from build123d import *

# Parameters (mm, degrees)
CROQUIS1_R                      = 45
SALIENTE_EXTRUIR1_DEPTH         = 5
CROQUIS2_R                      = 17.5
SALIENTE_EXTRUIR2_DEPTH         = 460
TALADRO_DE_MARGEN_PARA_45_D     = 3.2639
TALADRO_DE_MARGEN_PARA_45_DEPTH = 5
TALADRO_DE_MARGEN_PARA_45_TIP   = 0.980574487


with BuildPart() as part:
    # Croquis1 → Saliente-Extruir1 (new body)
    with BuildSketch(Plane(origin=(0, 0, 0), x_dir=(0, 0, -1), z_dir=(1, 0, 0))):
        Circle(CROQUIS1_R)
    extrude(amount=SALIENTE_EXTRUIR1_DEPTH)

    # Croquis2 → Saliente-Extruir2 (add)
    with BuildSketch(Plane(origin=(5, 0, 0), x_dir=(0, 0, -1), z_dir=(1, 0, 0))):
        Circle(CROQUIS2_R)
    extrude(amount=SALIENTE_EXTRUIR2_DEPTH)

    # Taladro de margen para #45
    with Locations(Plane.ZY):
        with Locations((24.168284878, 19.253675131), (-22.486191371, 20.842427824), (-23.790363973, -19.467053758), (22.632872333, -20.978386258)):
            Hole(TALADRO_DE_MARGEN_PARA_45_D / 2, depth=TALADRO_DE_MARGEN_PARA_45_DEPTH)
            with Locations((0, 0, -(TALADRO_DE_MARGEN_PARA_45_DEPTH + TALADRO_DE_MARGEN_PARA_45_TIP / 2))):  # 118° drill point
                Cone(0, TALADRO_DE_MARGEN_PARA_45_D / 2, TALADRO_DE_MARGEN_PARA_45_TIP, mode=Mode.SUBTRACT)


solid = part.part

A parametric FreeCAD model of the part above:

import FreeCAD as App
import Part
import Sketcher
Q = App.Units.Quantity

doc = App.newDocument("Part")
body = doc.addObject("PartDesign::Body", "Body")

# Sketch on YZ plane
sketch1 = doc.addObject("Sketcher::SketchObject", "Sketch")
body.addObject(sketch1)
sketch1.AttachmentSupport = (doc.YZ_Plane, [""])
sketch1.MapMode = "FlatFace"
sketch1.addGeometry(Part.Circle(App.Vector(0, 0, 0), App.Vector(0, 0, 1), 45), False)
sketch1.addConstraint([
    Sketcher.Constraint("Coincident", 0, 3, -1, 1),
    Sketcher.Constraint("Diameter", 0, Q("90 mm")),
])
pad1 = doc.addObject("PartDesign::Pad", "Pad")
body.addObject(pad1)
pad1.Profile = sketch1
pad1.Length = 5

# Sketch on YZ plane
sketch2 = doc.addObject("Sketcher::SketchObject", "Sketch001")
body.addObject(sketch2)
sketch2.AttachmentSupport = (doc.YZ_Plane, [""])
sketch2.MapMode = "FlatFace"
sketch2.AttachmentOffset = App.Placement(App.Vector(0, 0, 5), App.Rotation())
sketch2.addGeometry(Part.Circle(App.Vector(0, 0, 0), App.Vector(0, 0, 1), 17.5), False)
sketch2.addConstraint([
    Sketcher.Constraint("Coincident", 0, 3, -1, 1),
    Sketcher.Constraint("Diameter", 0, Q("35 mm")),
])
pad2 = doc.addObject("PartDesign::Pad", "Pad001")
body.addObject(pad2)
pad2.Profile = sketch2
pad2.Length = 460

# Sketch on YZ plane
sketch3 = doc.addObject("Sketcher::SketchObject", "Sketch002")
body.addObject(sketch3)
sketch3.AttachmentSupport = (doc.YZ_Plane, [""])
sketch3.MapMode = "FlatFace"
sketch3.addGeometry([
    Part.Circle(App.Vector(19.253675, 24.168285, 0), App.Vector(0, 0, 1), 1.63195),
    Part.Circle(App.Vector(20.842428, -22.486191, 0), App.Vector(0, 0, 1), 1.63195),
    Part.Circle(App.Vector(-19.467054, -23.790364, 0), App.Vector(0, 0, 1), 1.63195),
    Part.Circle(App.Vector(-20.978386, 22.632872, 0), App.Vector(0, 0, 1), 1.63195),
], False)
sketch3.addConstraint([
    Sketcher.Constraint("Equal", 0, 1),
    Sketcher.Constraint("Equal", 1, 2),
    Sketcher.Constraint("Equal", 2, 3),
    Sketcher.Constraint("Diameter", 0, Q("3.2639 mm")),
    Sketcher.Constraint("DistanceY", 1, 3, -1, 1, Q("22.486191 mm")),
    Sketcher.Constraint("DistanceX", 2, 3, 1, 3, Q("40.309482 mm")),
    Sketcher.Constraint("DistanceX", 2, 3, 0, 3, Q("38.720729 mm")),
    Sketcher.Constraint("DistanceY", 2, 3, 0, 3, Q("47.958649 mm")),
    Sketcher.Constraint("DistanceX", 3, 3, 0, 3, Q("40.232061 mm")),
    Sketcher.Constraint("DistanceX", -1, 1, 0, 3, Q("19.253675 mm")),
    Sketcher.Constraint("DistanceY", -1, 1, 0, 3, Q("24.168285 mm")),
    Sketcher.Constraint("DistanceY", -1, 1, 3, 3, Q("22.632872 mm")),
])
doc.recompute()
hole = doc.addObject("PartDesign::Hole", "Hole")
body.addObject(hole)
hole.Profile = sketch3
hole.ThreadType = "None"
hole.Diameter = 3.2639
hole.DepthType = "Dimension"
hole.Depth = 5
hole.DrillPoint = "Angled"
hole.DrillPointAngle = 118
hole.Reversed = True

doc.recompute()
